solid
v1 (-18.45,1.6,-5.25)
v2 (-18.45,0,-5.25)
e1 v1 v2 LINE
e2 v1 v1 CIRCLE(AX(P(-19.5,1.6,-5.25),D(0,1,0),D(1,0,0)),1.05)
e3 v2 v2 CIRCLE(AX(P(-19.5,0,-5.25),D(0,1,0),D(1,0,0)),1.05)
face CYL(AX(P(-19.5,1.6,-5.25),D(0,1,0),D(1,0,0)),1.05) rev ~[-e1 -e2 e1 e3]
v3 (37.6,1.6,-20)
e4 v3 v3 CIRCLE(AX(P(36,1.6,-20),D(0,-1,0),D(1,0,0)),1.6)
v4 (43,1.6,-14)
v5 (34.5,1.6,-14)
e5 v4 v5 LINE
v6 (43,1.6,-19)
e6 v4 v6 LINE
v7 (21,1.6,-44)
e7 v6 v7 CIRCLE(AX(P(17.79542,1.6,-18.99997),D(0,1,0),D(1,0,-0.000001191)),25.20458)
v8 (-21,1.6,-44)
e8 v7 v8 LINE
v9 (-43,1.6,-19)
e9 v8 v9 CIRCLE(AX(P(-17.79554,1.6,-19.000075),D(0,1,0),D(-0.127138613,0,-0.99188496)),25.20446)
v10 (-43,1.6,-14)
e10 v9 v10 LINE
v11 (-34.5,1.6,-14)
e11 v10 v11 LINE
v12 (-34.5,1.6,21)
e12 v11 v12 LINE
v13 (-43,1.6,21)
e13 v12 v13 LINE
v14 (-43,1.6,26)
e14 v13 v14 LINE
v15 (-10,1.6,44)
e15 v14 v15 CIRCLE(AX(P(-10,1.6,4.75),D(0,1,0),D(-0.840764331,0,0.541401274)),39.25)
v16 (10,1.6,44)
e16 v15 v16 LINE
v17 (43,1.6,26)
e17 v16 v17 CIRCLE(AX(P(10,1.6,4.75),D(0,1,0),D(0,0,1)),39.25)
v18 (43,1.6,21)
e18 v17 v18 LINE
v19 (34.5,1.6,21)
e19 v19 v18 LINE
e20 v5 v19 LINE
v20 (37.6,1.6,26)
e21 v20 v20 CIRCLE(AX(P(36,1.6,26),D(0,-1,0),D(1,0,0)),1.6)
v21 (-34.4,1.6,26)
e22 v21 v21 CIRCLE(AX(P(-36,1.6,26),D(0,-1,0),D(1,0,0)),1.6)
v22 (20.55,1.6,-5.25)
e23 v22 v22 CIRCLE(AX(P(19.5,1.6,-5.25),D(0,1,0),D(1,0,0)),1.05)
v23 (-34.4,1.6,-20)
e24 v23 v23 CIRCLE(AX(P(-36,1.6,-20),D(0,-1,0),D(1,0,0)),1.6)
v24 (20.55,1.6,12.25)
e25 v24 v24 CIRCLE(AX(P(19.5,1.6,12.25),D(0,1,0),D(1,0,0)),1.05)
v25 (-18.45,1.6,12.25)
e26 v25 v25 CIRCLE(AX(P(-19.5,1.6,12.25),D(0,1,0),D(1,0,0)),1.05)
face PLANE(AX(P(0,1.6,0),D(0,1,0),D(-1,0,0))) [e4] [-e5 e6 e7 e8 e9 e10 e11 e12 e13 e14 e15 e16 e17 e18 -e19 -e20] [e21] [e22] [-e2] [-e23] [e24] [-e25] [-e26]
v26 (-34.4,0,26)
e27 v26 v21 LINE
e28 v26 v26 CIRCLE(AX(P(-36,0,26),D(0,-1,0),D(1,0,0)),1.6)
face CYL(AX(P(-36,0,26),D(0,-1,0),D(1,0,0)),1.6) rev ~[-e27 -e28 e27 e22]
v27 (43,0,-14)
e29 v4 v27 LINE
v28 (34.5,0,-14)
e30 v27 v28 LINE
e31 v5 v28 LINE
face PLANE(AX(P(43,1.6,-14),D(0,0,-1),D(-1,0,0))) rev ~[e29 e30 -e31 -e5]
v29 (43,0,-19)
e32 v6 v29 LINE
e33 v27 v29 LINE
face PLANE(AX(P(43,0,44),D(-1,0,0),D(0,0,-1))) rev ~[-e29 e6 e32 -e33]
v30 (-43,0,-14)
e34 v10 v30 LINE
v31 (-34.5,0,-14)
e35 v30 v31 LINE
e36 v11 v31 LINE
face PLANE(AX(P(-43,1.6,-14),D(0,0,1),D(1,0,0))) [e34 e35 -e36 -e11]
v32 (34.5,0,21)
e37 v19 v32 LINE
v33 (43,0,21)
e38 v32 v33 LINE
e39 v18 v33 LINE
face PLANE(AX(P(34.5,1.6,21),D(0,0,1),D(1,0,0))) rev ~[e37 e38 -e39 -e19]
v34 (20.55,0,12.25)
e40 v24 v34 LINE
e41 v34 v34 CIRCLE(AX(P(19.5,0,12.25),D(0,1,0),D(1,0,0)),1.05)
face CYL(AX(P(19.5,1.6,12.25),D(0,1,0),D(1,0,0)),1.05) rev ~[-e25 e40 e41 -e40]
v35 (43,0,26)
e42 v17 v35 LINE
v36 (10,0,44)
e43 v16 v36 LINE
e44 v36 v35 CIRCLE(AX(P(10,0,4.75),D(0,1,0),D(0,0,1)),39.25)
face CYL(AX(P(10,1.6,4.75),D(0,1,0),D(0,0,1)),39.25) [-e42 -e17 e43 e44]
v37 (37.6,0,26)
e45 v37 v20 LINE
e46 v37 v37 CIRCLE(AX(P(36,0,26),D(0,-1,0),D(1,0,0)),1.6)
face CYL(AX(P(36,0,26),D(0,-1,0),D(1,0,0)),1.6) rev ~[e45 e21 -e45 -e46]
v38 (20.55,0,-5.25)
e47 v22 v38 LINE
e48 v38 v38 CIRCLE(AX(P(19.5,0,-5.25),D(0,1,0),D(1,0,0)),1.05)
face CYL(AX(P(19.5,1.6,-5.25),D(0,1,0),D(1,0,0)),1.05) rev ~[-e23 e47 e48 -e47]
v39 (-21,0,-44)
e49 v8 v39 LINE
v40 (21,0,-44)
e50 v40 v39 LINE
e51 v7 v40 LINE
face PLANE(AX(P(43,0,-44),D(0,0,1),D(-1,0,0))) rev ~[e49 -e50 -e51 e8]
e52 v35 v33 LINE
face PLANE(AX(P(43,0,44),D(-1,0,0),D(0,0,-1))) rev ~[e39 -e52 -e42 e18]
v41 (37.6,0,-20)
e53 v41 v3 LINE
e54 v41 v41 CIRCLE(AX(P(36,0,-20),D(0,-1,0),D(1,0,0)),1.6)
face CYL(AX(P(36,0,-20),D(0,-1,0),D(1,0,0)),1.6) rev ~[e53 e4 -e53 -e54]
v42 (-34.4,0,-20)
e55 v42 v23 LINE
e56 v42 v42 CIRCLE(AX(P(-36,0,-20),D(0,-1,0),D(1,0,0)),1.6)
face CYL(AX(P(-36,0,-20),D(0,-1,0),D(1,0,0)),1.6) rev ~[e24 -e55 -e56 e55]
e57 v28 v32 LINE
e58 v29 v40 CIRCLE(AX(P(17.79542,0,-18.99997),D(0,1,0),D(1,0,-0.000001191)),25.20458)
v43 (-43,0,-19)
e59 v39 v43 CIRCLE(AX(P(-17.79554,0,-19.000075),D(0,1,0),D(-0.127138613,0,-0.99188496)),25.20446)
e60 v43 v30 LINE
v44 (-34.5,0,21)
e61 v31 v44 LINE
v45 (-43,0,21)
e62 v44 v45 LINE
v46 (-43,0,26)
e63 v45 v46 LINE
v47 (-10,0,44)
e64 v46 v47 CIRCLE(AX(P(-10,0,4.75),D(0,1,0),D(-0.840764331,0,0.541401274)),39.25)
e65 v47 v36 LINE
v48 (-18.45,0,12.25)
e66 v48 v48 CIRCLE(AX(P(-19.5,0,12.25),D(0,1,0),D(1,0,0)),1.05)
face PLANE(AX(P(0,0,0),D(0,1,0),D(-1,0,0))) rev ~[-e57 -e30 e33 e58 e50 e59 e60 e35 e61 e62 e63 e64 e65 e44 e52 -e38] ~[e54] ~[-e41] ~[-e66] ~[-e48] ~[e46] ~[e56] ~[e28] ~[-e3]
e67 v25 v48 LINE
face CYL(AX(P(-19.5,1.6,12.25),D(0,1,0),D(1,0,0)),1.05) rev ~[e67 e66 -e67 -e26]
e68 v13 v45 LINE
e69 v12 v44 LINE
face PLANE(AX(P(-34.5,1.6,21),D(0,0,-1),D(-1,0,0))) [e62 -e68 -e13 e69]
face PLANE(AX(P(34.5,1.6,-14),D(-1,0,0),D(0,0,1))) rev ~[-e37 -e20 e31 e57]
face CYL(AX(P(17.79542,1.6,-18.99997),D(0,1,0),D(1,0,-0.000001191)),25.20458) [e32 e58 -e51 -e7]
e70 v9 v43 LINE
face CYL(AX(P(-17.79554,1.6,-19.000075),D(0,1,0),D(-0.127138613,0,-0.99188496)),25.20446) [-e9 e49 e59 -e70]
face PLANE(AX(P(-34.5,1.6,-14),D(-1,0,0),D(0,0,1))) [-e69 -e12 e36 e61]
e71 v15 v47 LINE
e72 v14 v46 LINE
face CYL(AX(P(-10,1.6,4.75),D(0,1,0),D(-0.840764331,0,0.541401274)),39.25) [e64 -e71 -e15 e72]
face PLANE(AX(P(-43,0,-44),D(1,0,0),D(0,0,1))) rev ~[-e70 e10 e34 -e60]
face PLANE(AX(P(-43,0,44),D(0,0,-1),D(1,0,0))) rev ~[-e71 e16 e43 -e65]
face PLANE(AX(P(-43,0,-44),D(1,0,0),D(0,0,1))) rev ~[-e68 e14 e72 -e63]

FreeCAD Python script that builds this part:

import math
import FreeCAD as App
import Part
import Sketcher

V = App.Vector
Q = App.Units.Quantity

doc = App.newDocument("Part")
body = doc.addObject("PartDesign::Body", "Body")

sketch1 = body.newObject("Sketcher::SketchObject", "Sketch")
sketch1.AttachmentSupport = (doc.getObject("XZ_Plane"), [""])
sketch1.MapMode = "FlatFace"
sketch1.addGeometry([
    Part.LineSegment(V(43, 44, 0), V(43, -44, 0)),
    Part.LineSegment(V(43, -44, 0), V(-43, -44, 0)),
    Part.LineSegment(V(-43, -44, 0), V(-43, 44, 0)),
    Part.LineSegment(V(-43, 44, 0), V(43, 44, 0)),
], False)
sketch1.addConstraint([
    Sketcher.Constraint("Coincident", 0, 2, 1, 1),
    Sketcher.Constraint("Coincident", 1, 2, 2, 1),
    Sketcher.Constraint("Coincident", 2, 2, 3, 1),
    Sketcher.Constraint("Coincident", 3, 2, 0, 1),
    Sketcher.Constraint("Vertical", 0),
    Sketcher.Constraint("Horizontal", 1),
    Sketcher.Constraint("Vertical", 2),
    Sketcher.Constraint("Horizontal", 3),
    Sketcher.Constraint("Symmetric", 0, 2, 2, 2, -1, 1),
    Sketcher.Constraint("DistanceX", 1, 2, 1, 1, Q("86 mm")),
    Sketcher.Constraint("DistanceY", 0, 2, 0, 1, Q("88 mm")),
])
pad1 = body.newObject("PartDesign::Pad", "Pad")
pad1.Profile = sketch1
pad1.Length = 1.6
pad1.Reversed = True

sketch2 = body.newObject("Sketcher::SketchObject", "Sketch001")
sketch2.AttachmentSupport = (doc.getObject("XZ_Plane"), [""])
sketch2.MapMode = "FlatFace"
sketch2.AttachmentOffset = App.Placement(V(0, 0, -1.6), App.Rotation())
sketch2.addGeometry([
    Part.LineSegment(V(43, -19, 0), V(43, -44, 0)),
    Part.LineSegment(V(43, -44, 0), V(21, -44, 0)),
    Part.ArcOfCircle(Part.Circle(V(18, -19, 0), V(0, 0, 1), 25), math.radians(-83), math.radians(0)),
    Part.ArcOfCircle(Part.Circle(V(-18, -19, 0), V(0, 0, 1), 25), math.radians(180), math.radians(263)),
    Part.LineSegment(V(-21, -44, 0), V(-43, -44, 0)),
    Part.LineSegment(V(-43, -44, 0), V(-43, -19, 0)),
    Part.LineSegment(V(43, 21, 0), V(43, -14, 0)),
    Part.LineSegment(V(43, -14, 0), V(34, -14, 0)),
    Part.LineSegment(V(34, -14, 0), V(34, 21, 0)),
    Part.LineSegment(V(34, 21, 0), V(43, 21, 0)),
    Part.LineSegment(V(-34, -14, 0), V(-43, -14, 0)),
    Part.LineSegment(V(-43, -14, 0), V(-43, 21, 0)),
    Part.LineSegment(V(-43, 21, 0), V(-34, 21, 0)),
    Part.LineSegment(V(-34, 21, 0), V(-34, -14, 0)),
    Part.LineSegment(V(43, 44, 0), V(43, 26, 0)),
    Part.ArcOfCircle(Part.Circle(V(10, 5, 0), V(0, 0, 1), 39), math.radians(33), math.radians(90)),
    Part.LineSegment(V(10, 44, 0), V(43, 44, 0)),
    Part.ArcOfCircle(Part.Circle(V(-10, 5, 0), V(0, 0, 1), 39), math.radians(90), math.radians(147)),
    Part.LineSegment(V(-43, 26, 0), V(-43, 44, 0)),
    Part.LineSegment(V(-43, 44, 0), V(-10, 44, 0)),
], False)
sketch2.addConstraint([
    Sketcher.Constraint("Coincident", 0, 2, 1, 1),
    Sketcher.Constraint("Coincident", 1, 2, 2, 1),
    Sketcher.Constraint("Tangent", 2, 2, 0, 1),
    Sketcher.Constraint("Coincident", 3, 2, 4, 1),
    Sketcher.Constraint("Coincident", 4, 2, 5, 1),
    Sketcher.Constraint("Tangent", 5, 2, 3, 1),
    Sketcher.Constraint("Coincident", 6, 2, 7, 1),
    Sketcher.Constraint("Coincident", 7, 2, 8, 1),
    Sketcher.Constraint("Coincident", 8, 2, 9, 1),
    Sketcher.Constraint("Coincident", 9, 2, 6, 1),
    Sketcher.Constraint("Coincident", 10, 2, 11, 1),
    Sketcher.Constraint("Coincident", 11, 2, 12, 1),
    Sketcher.Constraint("Coincident", 12, 2, 13, 1),
    Sketcher.Constraint("Coincident", 13, 2, 10, 1),
    Sketcher.Constraint("Coincident", 14, 2, 15, 1),
    Sketcher.Constraint("Tangent", 15, 2, 16, 1),
    Sketcher.Constraint("Coincident", 16, 2, 14, 1),
    Sketcher.Constraint("Coincident", 17, 2, 18, 1),
    Sketcher.Constraint("Coincident", 18, 2, 19, 1),
    Sketcher.Constraint("Tangent", 19, 2, 17, 1),
    Sketcher.Constraint("Vertical", 0),
    Sketcher.Constraint("Horizontal", 1),
    Sketcher.Constraint("Horizontal", 4),
    Sketcher.Constraint("Vertical", 5),
    Sketcher.Constraint("Vertical", 6),
    Sketcher.Constraint("Horizontal", 7),
    Sketcher.Constraint("Vertical", 8),
    Sketcher.Constraint("Horizontal", 9),
    Sketcher.Constraint("Horizontal", 10),
    Sketcher.Constraint("Vertical", 11),
    Sketcher.Constraint("Horizontal", 12),
    Sketcher.Constraint("Vertical", 13),
    Sketcher.Constraint("Vertical", 14),
    Sketcher.Constraint("Horizontal", 16),
    Sketcher.Constraint("Vertical", 18),
    Sketcher.Constraint("Horizontal", 19),
    Sketcher.Constraint("Equal", 2, 3),
    Sketcher.Constraint("Equal", 15, 17),
    Sketcher.Constraint("Symmetric", 4, 2, 16, 2, -1, 1),
    Sketcher.Constraint("Symmetric", 0, 2, 18, 2, -1, 1),
    Sketcher.Constraint("Symmetric", 2, 3, 3, 3, -2),
    Sketcher.Constraint("Symmetric", 15, 3, 17, 3, -2),
    Sketcher.Constraint("Symmetric", 6, 2, 10, 2, -2),
    Sketcher.Constraint("Symmetric", 8, 2, 12, 2, -2),
    Sketcher.Constraint("Vertical", 2, 2, 6, 2),
    Sketcher.Constraint("DistanceY", 6, 2, 6, 1, Q("35 mm")),
    Sketcher.Constraint("Radius", 15, Q("39.25 mm")),
    Sketcher.Constraint("DistanceX", 7, 2, 7, 1, Q("8.5 mm")),
    Sketcher.Constraint("DistanceX", -1, 1, 15, 3, Q("10 mm")),
    Sketcher.Constraint("DistanceX", -1, 1, 1, 2, Q("21 mm")),
    Sketcher.Constraint("DistanceY", -1, 1, 8, 2, Q("21 mm")),
    Sketcher.Constraint("DistanceY", 2, 2, 6, 2, Q("5 mm")),
    Sketcher.Constraint("DistanceY", 0, 2, 6, 2, Q("30 mm")),
    Sketcher.Constraint("DistanceY", 9, 2, 14, 2, Q("5 mm")),
])
pocket1 = body.newObject("PartDesign::Pocket", "Pocket")
pocket1.Profile = sketch2
pocket1.Type = "ThroughAll"
pocket1.Reversed = True

sketch3 = body.newObject("Sketcher::SketchObject", "Sketch002")
sketch3.AttachmentSupport = (doc.getObject("XZ_Plane"), [""])
sketch3.MapMode = "FlatFace"
sketch3.AttachmentOffset = App.Placement(V(0, 0, -1.6), App.Rotation())
sketch3.addGeometry([
    Part.Circle(V(-19.5, -5.2, 0), V(0, 0, 1), 1.1),
    Part.Circle(V(-19.5, 12.2, 0), V(0, 0, 1), 1.1),
    Part.Circle(V(19.5, -5.2, 0), V(0, 0, 1), 1.1),
    Part.Circle(V(19.5, 12.2, 0), V(0, 0, 1), 1.1),
], False)
sketch3.addConstraint([
    Sketcher.Constraint("Equal", 0, 1),
    Sketcher.Constraint("Equal", 1, 2),
    Sketcher.Constraint("Equal", 2, 3),
    Sketcher.Constraint("Symmetric", 0, 3, 2, 3, -2),
    Sketcher.Constraint("Symmetric", 1, 3, 3, 3, -2),
    Sketcher.Constraint("Vertical", 0, 3, 1, 3),
    Sketcher.Constraint("Diameter", 0, Q("2.1 mm")),
    Sketcher.Constraint("DistanceY", 0, 3, 1, 3, Q("17.5 mm")),
    Sketcher.Constraint("DistanceX", 0, 3, 2, 3, Q("39 mm")),
    Sketcher.Constraint("DistanceY", 0, 3, -1, 1, Q("5.25 mm")),
])
pocket2 = body.newObject("PartDesign::Pocket", "Pocket001")
pocket2.Profile = sketch3
pocket2.Type = "ThroughAll"
pocket2.Reversed = True

sketch4 = body.newObject("Sketcher::SketchObject", "Sketch003")
sketch4.AttachmentSupport = (doc.getObject("XZ_Plane"), [""])
sketch4.MapMode = "FlatFace"
sketch4.addGeometry([
    Part.Circle(V(-36, 26, 0), V(0, 0, 1), 1.6),
    Part.Circle(V(36, 26, 0), V(0, 0, 1), 1.6),
    Part.Circle(V(36, -20, 0), V(0, 0, 1), 1.6),
    Part.Circle(V(-36, -20, 0), V(0, 0, 1), 1.6),
], False)
sketch4.addConstraint([
    Sketcher.Constraint("Equal", 0, 1),
    Sketcher.Constraint("Equal", 1, 2),
    Sketcher.Constraint("Equal", 2, 3),
    Sketcher.Constraint("Symmetric", 0, 3, 1, 3, -2),
    Sketcher.Constraint("Symmetric", 2, 3, 3, 3, -2),
    Sketcher.Constraint("Vertical", 1, 3, 2, 3),
    Sketcher.Constraint("Diameter", 0, Q("3.2 mm")),
    Sketcher.Constraint("DistanceX", 0, 3, -1, 1, Q("36 mm")),
    Sketcher.Constraint("DistanceY", -1, 1, 0, 3, Q("26 mm")),
    Sketcher.Constraint("DistanceY", 2, 3, -1, 1, Q("20 mm")),
])
pocket3 = body.newObject("PartDesign::Pocket", "Pocket002")
pocket3.Profile = sketch4
pocket3.Type = "ThroughAll"

doc.recompute()
